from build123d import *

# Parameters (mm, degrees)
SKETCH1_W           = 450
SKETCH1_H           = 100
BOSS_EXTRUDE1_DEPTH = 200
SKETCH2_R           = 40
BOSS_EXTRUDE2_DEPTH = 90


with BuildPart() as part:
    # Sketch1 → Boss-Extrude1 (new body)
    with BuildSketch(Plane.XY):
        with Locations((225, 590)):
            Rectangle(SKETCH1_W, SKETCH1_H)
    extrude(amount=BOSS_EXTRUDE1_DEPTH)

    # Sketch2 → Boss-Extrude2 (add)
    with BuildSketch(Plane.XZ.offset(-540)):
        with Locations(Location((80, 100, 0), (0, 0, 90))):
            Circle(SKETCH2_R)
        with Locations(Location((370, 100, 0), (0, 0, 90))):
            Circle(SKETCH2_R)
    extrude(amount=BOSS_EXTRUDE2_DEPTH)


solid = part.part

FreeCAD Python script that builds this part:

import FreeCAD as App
import Part
import Sketcher
from FreeCAD import Vector

doc = App.newDocument("Part")
body = doc.addObject("PartDesign::Body", "Body")

sketch1 = body.newObject("Sketcher::SketchObject", "Sketch")
sketch1.AttachmentSupport = (doc.getObject("XY_Plane"), [""])
sketch1.MapMode = "FlatFace"
sketch1.addGeometry([
    Part.LineSegment(Vector(0, 640, 0), Vector(0, 540, 0)),
    Part.LineSegment(Vector(0, 540, 0), Vector(450, 540, 0)),
    Part.LineSegment(Vector(450, 540, 0), Vector(450, 640, 0)),
    Part.LineSegment(Vector(450, 640, 0), Vector(0, 640, 0)),
], False)
sketch1.addConstraint([
    Sketcher.Constraint("Coincident", 0, 2, 1, 1),
    Sketcher.Constraint("Coincident", 1, 2, 2, 1),
    Sketcher.Constraint("Coincident", 2, 2, 3, 1),
    Sketcher.Constraint("Coincident", 3, 2, 0, 1),
    Sketcher.Constraint("Vertical", 0),
    Sketcher.Constraint("Horizontal", 1),
    Sketcher.Constraint("Vertical", 2),
    Sketcher.Constraint("Horizontal", 3),
    Sketcher.Constraint("PointOnObject", 0, 2, -2),
    Sketcher.Constraint("DistanceX", 1, 1, 1, 2, 450.0),
    Sketcher.Constraint("DistanceY", 0, 2, 0, 1, 100.0),
    Sketcher.Constraint("DistanceY", -1, 1, 0, 2, 540.0),
])
pad1 = body.newObject("PartDesign::Pad", "Pad")
pad1.Profile = sketch1
pad1.Length = 200

sketch2 = body.newObject("Sketcher::SketchObject", "Sketch001")
sketch2.AttachmentSupport = (doc.getObject("XZ_Plane"), [""])
sketch2.MapMode = "FlatFace"
sketch2.AttachmentOffset = App.Placement(Vector(0, 0, -540), App.Rotation())
sketch2.addGeometry([
    Part.Circle(Vector(80, 100, 0), Vector(0, 0, 1), 40),
    Part.Circle(Vector(370, 100, 0), Vector(0, 0, 1), 40),
], False)
sketch2.addConstraint([
    Sketcher.Constraint("Equal", 0, 1),
    Sketcher.Constraint("Horizontal", 0, 3, 1, 3),
    Sketcher.Constraint("Diameter", 0, 80.0),
    Sketcher.Constraint("DistanceX", -1, 1, 0, 3, 80.0),
    Sketcher.Constraint("DistanceY", -1, 1, 0, 3, 100.0),
    Sketcher.Constraint("DistanceX", -1, 1, 1, 3, 370.0),
])
pad2 = body.newObject("PartDesign::Pad", "Pad001")
pad2.Profile = sketch2
pad2.Length = 90

doc.recompute()
